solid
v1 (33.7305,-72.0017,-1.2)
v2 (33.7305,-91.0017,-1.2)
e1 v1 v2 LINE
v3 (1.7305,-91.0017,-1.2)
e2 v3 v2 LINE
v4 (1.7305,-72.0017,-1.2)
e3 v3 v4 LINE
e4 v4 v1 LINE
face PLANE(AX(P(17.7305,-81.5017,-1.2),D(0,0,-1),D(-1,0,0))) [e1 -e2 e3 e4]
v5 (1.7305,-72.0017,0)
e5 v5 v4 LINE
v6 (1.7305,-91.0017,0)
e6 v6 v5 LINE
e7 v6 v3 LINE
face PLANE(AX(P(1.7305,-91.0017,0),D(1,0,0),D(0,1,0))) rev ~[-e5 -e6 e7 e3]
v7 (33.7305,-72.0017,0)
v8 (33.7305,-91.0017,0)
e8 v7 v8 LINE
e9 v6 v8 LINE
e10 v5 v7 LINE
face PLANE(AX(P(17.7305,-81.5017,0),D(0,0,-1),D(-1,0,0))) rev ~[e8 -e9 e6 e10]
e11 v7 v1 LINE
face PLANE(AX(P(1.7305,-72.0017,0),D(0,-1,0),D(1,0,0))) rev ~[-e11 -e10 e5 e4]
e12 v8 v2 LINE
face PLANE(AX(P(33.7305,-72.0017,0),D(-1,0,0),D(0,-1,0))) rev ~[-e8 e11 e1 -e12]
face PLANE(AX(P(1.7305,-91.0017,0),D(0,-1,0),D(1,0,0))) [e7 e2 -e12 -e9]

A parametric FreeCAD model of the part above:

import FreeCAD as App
import Part
import Sketcher
from FreeCAD import Vector
Q = App.Units.Quantity

doc = App.newDocument("Part")
body = doc.addObject("PartDesign::Body", "Body")

# Sketch on XY plane
sketch1 = body.newObject("Sketcher::SketchObject", "Sketch")
sketch1.AttachmentSupport = (doc.getObject("XY_Plane"), [""])
sketch1.MapMode = "FlatFace"
sketch1.addGeometry([
    Part.LineSegment(Vector(33.7305, -91.0017, 0), Vector(33.7305, -72.0017, 0)),
    Part.LineSegment(Vector(33.7305, -72.0017, 0), Vector(1.7305, -72.0017, 0)),
    Part.LineSegment(Vector(1.7305, -72.0017, 0), Vector(1.7305, -91.0017, 0)),
    Part.LineSegment(Vector(1.7305, -91.0017, 0), Vector(33.7305, -91.0017, 0)),
], False)
sketch1.addConstraint([
    Sketcher.Constraint("Coincident", 0, 2, 1, 1),
    Sketcher.Constraint("Coincident", 1, 2, 2, 1),
    Sketcher.Constraint("Coincident", 2, 2, 3, 1),
    Sketcher.Constraint("Coincident", 3, 2, 0, 1),
    Sketcher.Constraint("Vertical", 0),
    Sketcher.Constraint("Horizontal", 1),
    Sketcher.Constraint("Vertical", 2),
    Sketcher.Constraint("Horizontal", 3),
    Sketcher.Constraint("DistanceX", 1, 2, 1, 1, Q("32 mm")),
    Sketcher.Constraint("DistanceY", 0, 1, 0, 2, Q("19 mm")),
    Sketcher.Constraint("DistanceX", -1, 1, 0, 2, Q("33.7305 mm")),
    Sketcher.Constraint("DistanceY", 0, 2, -1, 1, Q("72.0017 mm")),
])
pad1 = body.newObject("PartDesign::Pad", "Pad")
pad1.Profile = sketch1
pad1.Length = 1.2
pad1.Reversed = True

doc.recompute()
